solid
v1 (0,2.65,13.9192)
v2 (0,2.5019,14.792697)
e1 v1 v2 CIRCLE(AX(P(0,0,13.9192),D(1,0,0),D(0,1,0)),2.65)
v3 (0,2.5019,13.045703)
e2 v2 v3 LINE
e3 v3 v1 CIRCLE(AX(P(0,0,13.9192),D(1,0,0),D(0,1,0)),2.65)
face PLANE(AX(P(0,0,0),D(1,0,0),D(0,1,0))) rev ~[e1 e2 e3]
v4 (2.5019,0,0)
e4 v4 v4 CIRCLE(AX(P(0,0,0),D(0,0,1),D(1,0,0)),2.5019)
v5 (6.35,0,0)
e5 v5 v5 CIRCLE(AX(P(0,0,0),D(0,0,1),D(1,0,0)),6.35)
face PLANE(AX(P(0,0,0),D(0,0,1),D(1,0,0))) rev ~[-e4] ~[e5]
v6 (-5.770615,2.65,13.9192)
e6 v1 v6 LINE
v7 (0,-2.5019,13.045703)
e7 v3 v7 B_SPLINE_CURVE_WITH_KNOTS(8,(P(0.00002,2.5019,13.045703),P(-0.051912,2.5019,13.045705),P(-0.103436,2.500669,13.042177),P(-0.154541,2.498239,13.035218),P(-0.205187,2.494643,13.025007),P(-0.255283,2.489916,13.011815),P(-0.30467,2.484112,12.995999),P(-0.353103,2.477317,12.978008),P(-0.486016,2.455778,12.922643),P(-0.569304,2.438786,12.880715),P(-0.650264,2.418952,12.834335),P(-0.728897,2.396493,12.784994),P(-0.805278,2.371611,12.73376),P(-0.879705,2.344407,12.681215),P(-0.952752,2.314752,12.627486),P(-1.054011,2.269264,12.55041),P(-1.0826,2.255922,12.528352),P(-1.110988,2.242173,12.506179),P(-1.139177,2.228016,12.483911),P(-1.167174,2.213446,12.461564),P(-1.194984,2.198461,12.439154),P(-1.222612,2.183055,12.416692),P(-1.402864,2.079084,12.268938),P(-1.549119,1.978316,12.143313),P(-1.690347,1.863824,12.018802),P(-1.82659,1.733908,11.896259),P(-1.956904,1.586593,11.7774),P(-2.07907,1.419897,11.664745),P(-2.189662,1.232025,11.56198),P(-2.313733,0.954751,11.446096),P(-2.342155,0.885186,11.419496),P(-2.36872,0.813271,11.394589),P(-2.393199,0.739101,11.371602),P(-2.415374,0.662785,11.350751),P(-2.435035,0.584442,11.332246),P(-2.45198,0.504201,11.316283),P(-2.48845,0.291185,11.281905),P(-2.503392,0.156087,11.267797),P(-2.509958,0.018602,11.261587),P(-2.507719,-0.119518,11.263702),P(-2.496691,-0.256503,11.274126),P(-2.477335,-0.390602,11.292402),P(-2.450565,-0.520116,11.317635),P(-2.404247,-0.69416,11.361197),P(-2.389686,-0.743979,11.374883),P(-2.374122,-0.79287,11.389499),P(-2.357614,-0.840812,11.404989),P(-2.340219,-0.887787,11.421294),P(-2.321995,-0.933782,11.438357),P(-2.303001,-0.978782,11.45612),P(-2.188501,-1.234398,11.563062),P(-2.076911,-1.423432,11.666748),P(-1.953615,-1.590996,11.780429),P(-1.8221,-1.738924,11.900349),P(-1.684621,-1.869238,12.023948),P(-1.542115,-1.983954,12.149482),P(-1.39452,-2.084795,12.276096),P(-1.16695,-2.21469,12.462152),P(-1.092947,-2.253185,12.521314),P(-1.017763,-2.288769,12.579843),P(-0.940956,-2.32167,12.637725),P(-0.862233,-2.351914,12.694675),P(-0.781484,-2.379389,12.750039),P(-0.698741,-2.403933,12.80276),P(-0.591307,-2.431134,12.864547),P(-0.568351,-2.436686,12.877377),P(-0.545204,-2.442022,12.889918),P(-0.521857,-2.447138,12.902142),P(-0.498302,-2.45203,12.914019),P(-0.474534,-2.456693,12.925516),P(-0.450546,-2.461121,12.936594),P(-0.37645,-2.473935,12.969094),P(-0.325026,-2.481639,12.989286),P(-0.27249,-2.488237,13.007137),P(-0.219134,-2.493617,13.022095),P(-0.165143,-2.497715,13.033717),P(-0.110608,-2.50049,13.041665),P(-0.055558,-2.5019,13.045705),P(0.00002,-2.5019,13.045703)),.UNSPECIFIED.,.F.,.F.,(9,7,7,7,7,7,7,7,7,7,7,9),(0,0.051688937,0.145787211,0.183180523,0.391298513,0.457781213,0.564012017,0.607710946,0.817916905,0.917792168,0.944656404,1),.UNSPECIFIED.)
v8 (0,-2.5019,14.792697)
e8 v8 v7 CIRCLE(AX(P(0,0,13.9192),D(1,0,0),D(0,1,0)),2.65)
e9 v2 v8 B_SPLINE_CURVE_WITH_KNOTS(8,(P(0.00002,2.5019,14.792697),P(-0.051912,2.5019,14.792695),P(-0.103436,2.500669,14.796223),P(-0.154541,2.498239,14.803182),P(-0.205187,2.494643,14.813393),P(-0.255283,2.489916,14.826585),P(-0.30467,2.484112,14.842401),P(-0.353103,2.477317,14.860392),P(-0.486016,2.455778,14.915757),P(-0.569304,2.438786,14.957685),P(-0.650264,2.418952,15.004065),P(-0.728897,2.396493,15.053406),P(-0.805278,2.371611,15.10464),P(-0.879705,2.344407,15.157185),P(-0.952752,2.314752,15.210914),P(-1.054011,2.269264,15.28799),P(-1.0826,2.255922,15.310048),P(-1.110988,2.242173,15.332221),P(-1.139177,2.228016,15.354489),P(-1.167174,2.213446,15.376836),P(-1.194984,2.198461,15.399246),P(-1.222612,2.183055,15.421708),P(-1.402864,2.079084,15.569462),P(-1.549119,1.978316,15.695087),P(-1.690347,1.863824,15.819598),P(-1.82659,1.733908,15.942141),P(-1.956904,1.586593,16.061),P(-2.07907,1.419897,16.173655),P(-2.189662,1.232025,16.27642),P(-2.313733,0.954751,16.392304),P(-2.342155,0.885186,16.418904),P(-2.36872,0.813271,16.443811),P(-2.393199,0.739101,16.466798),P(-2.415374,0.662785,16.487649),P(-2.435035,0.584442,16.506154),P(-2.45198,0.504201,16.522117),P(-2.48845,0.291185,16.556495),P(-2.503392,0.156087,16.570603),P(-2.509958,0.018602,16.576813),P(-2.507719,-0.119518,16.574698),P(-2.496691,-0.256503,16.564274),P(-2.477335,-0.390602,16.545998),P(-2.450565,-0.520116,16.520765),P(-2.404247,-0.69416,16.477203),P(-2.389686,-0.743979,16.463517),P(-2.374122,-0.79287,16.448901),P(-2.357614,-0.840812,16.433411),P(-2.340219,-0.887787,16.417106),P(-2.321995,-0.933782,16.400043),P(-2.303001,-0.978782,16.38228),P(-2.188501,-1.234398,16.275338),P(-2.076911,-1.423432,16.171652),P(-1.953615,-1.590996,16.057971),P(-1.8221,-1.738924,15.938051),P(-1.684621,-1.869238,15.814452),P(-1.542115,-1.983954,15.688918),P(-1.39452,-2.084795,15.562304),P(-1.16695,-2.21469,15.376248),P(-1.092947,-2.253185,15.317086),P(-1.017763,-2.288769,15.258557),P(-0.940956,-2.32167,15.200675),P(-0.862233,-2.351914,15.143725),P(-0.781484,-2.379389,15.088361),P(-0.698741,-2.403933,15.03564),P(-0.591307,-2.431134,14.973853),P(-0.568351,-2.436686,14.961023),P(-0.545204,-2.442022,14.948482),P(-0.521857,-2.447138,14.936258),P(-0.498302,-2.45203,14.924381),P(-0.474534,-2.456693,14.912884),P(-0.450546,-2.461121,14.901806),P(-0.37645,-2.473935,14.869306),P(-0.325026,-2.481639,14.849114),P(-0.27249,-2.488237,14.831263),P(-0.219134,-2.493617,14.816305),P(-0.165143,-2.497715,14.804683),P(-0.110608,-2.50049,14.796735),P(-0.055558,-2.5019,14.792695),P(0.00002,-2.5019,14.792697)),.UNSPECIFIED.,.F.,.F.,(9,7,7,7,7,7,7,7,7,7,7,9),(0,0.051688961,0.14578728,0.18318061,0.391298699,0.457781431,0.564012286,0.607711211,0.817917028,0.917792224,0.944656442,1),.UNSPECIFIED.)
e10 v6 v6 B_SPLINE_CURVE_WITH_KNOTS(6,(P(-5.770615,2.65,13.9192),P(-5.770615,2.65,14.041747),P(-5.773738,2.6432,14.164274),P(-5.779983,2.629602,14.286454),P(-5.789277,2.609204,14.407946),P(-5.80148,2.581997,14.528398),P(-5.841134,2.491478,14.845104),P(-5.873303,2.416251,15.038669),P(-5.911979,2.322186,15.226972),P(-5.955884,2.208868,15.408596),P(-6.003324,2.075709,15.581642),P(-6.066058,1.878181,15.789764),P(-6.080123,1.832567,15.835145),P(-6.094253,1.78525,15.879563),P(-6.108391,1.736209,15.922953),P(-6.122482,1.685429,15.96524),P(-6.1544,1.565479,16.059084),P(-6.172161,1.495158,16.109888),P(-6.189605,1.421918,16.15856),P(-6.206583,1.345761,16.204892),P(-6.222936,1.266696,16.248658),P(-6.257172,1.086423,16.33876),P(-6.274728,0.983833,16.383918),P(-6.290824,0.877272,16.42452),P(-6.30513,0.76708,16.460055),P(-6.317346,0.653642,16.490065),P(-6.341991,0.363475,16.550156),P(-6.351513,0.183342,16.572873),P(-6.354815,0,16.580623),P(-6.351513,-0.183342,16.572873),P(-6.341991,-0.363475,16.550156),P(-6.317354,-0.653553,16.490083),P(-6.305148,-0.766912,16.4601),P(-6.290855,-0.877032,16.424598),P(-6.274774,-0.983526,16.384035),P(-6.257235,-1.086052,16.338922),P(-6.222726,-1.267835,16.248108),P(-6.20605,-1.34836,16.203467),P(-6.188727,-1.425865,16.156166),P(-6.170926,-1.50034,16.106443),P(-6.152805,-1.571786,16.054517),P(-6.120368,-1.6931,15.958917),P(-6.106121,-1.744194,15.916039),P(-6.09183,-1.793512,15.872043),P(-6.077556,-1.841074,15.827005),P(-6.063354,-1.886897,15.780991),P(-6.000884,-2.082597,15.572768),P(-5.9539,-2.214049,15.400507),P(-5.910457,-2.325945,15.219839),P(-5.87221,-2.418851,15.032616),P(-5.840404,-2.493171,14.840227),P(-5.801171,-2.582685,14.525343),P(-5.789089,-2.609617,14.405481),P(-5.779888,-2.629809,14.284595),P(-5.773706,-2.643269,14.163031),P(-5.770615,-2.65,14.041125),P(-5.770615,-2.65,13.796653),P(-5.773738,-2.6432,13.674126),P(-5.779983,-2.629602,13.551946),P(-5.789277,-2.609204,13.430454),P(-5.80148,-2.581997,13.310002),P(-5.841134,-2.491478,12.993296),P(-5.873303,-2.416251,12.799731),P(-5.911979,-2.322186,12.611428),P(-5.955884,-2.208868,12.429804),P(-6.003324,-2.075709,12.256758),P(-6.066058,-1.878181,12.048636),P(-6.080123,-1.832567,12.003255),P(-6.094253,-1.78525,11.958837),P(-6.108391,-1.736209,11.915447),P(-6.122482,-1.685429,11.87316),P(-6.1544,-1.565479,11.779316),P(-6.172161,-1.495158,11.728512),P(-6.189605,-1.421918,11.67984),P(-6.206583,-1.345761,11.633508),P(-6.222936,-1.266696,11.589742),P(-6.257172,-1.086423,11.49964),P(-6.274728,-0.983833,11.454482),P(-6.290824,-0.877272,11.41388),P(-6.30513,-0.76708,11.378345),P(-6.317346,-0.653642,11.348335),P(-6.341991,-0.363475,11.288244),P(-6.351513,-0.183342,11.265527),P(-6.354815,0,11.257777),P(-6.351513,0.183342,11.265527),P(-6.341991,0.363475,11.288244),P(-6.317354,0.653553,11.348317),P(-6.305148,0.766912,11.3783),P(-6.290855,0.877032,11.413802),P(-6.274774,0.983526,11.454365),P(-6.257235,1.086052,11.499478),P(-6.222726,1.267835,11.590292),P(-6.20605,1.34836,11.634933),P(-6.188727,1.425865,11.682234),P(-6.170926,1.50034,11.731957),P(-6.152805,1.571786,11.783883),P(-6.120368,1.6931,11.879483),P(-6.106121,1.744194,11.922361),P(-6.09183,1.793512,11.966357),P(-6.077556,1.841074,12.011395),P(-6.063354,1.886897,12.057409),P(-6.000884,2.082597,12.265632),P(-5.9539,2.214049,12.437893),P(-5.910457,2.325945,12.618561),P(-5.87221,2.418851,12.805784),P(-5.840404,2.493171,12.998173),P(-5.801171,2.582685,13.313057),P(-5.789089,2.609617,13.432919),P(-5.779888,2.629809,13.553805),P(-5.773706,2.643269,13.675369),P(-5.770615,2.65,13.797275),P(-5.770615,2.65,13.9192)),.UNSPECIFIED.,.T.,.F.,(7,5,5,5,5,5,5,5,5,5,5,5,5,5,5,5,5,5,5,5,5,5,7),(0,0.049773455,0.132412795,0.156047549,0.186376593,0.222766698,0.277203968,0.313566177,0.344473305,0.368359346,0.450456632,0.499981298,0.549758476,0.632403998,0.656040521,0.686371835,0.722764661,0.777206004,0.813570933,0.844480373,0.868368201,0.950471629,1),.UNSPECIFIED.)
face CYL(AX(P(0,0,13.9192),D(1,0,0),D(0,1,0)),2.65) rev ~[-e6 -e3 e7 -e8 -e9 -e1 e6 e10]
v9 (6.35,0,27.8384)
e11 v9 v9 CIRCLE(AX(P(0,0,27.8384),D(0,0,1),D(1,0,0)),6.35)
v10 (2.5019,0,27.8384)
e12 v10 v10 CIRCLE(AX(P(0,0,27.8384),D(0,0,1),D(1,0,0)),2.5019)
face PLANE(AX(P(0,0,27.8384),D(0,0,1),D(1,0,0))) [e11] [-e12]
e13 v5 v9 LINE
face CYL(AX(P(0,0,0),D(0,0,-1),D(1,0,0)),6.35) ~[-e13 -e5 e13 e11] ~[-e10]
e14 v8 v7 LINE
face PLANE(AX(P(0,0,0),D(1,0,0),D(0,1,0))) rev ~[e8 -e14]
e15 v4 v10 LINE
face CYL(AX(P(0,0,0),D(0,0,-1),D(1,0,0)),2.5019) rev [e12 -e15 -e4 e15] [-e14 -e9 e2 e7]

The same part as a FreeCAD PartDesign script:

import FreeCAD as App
import Part
import Sketcher

V = App.Vector
Q = App.Units.Quantity

doc = App.newDocument("Part")
params = doc.addObject("Spreadsheet::Sheet", "Params")
for row, (alias, value) in enumerate([
    ("sketch1_diameter", "0.5 in"),
    ("sketch1_diameter2", "0.197 in"),
    ("pad1_length", "1.096 in"),
], start=1):
    params.set(f"A{row}", alias)
    params.set(f"B{row}", "=" + value)
    params.setAlias(f"B{row}", alias)

body = doc.addObject("PartDesign::Body", "Body")

sketch1 = body.newObject("Sketcher::SketchObject", "Sketch")
sketch1.AttachmentSupport = (doc.getObject("XY_Plane"), [""])
sketch1.MapMode = "FlatFace"
sketch1.addGeometry(Part.Circle(V(0, 0, 0), V(0, 0, 1), 6.3), False)
sketch1.addGeometry(Part.Circle(V(0, 0, 0), V(0, 0, 1), 2.5), False)
sketch1.addConstraint(Sketcher.Constraint("Coincident", 0, 3, -1, 1))
sketch1.addConstraint(Sketcher.Constraint("Coincident", 1, 3, -1, 1))
sketch1.addConstraint(Sketcher.Constraint("Diameter", 0, Q("0.5 in")))
sketch1.addConstraint(Sketcher.Constraint("Diameter", 1, Q("0.197 in")))
sketch1.setExpression("Constraints[2]", "Params.sketch1_diameter")
sketch1.setExpression("Constraints[3]", "Params.sketch1_diameter2")
pad1 = body.newObject("PartDesign::Pad", "Pad")
pad1.Profile = sketch1
pad1.setExpression("Length", "Params.pad1_length")

sketch2 = body.newObject("Sketcher::SketchObject", "Sketch001")
sketch2.AttachmentSupport = (doc.getObject("YZ_Plane"), [""])
sketch2.MapMode = "FlatFace"
sketch2.addGeometry(Part.Circle(V(0, 13.9, 0), V(0, 0, 1), 2.6), False)
sketch2.addConstraint(Sketcher.Constraint("PointOnObject", 0, 3, -2))
sketch2.addConstraint(Sketcher.Constraint("Diameter", 0, 5.3))
sketch2.addConstraint(Sketcher.Constraint("DistanceY", -1, 1, 0, 3, Q("0.548 in")))
pocket1 = body.newObject("PartDesign::Pocket", "Pocket")
pocket1.Profile = sketch2
pocket1.Type = "ThroughAll"

doc.recompute()
